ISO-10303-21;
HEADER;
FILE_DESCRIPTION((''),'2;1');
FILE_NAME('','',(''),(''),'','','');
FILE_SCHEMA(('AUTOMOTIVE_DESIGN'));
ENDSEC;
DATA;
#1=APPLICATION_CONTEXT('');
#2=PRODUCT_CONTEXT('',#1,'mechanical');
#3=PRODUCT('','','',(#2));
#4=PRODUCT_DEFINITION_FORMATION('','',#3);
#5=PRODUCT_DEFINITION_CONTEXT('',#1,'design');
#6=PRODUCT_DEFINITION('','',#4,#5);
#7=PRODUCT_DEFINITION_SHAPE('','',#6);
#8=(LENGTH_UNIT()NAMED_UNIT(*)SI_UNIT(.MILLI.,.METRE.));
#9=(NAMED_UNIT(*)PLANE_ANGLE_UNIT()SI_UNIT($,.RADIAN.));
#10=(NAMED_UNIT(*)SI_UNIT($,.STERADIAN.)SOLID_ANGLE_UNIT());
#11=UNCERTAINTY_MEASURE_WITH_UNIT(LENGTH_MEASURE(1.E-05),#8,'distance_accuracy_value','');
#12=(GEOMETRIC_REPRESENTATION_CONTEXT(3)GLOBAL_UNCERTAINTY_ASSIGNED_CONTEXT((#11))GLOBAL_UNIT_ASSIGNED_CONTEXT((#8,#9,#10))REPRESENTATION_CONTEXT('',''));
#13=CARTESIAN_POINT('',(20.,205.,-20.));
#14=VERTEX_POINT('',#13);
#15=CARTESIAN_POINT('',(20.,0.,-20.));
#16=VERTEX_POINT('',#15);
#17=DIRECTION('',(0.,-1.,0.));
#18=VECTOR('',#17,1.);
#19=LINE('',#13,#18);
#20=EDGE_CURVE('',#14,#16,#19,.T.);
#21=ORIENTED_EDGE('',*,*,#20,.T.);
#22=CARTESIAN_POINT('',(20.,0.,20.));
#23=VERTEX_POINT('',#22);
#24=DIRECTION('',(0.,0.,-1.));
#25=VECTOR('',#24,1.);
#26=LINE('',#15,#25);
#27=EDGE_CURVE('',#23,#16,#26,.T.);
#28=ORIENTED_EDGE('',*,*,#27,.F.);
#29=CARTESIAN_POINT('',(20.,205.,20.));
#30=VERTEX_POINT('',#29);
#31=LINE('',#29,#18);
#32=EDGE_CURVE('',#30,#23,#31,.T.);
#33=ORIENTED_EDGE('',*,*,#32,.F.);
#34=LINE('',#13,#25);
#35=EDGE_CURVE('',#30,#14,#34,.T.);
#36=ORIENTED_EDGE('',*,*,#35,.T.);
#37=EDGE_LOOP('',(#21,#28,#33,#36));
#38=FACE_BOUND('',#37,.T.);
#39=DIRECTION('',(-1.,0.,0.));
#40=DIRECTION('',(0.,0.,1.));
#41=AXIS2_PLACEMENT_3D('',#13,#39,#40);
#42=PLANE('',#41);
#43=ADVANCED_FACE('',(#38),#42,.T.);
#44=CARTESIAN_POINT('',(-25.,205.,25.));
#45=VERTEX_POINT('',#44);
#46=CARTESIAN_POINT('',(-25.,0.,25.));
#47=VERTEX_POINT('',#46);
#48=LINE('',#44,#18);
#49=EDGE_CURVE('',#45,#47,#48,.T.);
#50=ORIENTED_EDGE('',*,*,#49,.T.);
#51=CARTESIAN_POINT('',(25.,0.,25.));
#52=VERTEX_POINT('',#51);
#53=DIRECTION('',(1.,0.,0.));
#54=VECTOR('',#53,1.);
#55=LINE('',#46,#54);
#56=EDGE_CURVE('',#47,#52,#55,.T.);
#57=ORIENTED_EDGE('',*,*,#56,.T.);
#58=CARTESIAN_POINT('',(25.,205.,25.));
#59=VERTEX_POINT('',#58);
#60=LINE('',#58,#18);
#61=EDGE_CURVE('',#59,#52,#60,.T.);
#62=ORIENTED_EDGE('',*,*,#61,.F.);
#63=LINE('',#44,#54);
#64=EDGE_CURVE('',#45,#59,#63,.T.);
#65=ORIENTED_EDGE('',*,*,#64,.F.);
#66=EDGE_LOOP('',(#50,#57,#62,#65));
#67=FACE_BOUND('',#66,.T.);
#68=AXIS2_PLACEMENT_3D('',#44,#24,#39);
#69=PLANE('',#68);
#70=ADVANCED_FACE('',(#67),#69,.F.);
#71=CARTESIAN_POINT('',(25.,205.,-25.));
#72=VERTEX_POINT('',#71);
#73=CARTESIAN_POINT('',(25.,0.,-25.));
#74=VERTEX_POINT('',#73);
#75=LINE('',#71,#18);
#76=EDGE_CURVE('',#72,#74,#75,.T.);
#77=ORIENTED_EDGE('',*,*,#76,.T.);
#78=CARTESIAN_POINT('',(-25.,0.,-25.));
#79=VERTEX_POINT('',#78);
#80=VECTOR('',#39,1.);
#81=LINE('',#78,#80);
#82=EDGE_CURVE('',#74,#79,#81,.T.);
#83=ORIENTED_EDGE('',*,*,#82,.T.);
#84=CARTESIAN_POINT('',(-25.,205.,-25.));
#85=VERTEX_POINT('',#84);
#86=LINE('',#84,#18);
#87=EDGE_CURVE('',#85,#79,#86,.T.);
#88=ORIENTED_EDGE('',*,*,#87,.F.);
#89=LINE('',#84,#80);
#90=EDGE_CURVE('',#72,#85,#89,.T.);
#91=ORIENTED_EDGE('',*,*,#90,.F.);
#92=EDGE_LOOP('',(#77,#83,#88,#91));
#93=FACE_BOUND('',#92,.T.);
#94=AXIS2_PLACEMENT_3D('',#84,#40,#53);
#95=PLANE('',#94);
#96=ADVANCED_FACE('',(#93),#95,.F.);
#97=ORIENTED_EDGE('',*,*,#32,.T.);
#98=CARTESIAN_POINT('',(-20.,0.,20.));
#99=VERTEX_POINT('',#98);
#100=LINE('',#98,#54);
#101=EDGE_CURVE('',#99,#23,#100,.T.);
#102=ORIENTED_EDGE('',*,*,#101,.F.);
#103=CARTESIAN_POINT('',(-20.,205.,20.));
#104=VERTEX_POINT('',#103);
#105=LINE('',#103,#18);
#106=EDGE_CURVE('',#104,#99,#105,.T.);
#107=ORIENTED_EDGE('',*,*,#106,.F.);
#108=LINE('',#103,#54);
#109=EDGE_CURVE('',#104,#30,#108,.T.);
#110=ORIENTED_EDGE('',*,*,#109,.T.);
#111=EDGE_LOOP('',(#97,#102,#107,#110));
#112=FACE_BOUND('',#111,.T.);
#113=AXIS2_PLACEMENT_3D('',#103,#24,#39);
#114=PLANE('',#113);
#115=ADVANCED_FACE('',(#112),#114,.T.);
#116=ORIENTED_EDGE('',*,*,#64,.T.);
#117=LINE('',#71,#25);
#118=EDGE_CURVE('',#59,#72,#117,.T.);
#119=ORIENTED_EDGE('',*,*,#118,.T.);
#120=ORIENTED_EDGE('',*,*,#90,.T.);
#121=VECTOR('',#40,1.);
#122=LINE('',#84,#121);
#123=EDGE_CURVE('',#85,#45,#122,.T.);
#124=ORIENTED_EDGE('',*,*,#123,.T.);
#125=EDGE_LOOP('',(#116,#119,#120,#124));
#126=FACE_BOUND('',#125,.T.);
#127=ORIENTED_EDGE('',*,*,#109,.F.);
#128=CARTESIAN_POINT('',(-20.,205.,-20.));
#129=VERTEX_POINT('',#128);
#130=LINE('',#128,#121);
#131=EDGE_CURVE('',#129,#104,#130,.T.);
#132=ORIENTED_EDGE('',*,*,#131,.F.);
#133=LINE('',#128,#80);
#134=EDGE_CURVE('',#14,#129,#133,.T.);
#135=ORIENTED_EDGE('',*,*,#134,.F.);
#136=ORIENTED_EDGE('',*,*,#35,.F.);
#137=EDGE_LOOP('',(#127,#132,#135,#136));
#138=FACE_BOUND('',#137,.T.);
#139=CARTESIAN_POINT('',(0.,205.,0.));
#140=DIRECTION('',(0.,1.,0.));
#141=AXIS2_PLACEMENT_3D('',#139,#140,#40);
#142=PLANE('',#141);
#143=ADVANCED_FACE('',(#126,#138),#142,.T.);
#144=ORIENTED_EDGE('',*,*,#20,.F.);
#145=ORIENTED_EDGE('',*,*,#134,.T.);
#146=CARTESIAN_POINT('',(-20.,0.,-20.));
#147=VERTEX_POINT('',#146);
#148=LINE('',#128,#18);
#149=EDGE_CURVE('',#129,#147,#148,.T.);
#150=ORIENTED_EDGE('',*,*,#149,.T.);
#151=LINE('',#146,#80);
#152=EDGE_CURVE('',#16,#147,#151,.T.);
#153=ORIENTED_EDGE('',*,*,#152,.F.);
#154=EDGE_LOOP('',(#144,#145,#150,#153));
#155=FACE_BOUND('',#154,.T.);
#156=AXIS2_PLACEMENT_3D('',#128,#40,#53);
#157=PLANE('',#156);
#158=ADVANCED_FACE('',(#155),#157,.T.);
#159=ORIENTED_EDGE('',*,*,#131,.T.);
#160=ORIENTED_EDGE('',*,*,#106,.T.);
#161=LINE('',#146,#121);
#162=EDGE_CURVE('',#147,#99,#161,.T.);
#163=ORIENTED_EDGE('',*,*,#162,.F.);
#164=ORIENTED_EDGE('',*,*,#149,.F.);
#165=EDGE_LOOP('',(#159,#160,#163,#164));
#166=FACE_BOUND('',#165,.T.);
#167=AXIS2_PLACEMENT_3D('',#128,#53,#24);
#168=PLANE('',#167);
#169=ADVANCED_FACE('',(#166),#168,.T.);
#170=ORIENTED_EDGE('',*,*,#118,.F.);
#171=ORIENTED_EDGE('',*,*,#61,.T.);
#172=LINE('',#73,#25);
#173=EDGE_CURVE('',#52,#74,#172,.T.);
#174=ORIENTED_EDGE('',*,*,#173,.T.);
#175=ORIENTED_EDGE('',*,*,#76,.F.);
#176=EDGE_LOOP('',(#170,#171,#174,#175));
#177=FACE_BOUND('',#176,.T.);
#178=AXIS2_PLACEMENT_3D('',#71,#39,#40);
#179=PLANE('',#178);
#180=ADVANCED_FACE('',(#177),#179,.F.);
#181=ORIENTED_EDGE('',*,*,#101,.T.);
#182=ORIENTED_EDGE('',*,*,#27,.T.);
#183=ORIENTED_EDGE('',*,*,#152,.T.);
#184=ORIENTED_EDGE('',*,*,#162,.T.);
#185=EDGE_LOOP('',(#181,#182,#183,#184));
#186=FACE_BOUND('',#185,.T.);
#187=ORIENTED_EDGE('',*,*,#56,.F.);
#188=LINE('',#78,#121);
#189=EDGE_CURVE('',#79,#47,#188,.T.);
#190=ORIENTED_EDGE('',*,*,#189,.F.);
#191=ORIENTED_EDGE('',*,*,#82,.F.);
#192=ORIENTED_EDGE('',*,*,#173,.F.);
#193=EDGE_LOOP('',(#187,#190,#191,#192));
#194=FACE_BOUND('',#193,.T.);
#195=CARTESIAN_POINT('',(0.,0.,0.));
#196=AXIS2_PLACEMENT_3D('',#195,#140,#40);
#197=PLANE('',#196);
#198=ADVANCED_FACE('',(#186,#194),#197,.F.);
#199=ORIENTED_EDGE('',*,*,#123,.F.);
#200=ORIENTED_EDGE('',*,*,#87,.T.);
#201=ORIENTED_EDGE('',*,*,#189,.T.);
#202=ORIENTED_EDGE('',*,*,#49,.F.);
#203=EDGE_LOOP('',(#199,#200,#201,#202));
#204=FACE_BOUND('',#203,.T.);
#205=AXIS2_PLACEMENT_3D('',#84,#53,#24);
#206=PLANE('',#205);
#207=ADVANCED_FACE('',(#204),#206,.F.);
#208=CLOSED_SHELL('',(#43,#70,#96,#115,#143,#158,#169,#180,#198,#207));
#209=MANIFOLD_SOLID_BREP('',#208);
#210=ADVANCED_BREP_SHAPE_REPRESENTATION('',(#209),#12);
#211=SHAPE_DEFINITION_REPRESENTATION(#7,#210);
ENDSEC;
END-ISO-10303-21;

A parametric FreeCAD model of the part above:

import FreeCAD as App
import Part
import Sketcher
from FreeCAD import Vector
Q = App.Units.Quantity


def add_polygon(sketch, points):
    """Adds a closed chain of lines whose ends are joined by coincident constraints."""
    first, n = sketch.GeometryCount, len(points)
    for a, b in zip(points, points[1:] + points[:1]):
        sketch.addGeometry(Part.LineSegment(App.Vector(*a, 0), App.Vector(*b, 0)), False)
    for i in range(n):
        sketch.addConstraint(Sketcher.Constraint("Coincident", first + i, 2, first + (i + 1) % n, 1))

doc = App.newDocument("Part")
body = doc.addObject("PartDesign::Body", "Body")

sketch1 = body.newObject("Sketcher::SketchObject", "Sketch")
sketch1.AttachmentSupport = (doc.getObject("XZ_Plane"), [""])
sketch1.MapMode = "FlatFace"
add_polygon(sketch1, [(-25, -25), (-25, 25), (25, 25), (25, -25)])
add_polygon(sketch1, [(20, 20), (-20, 20), (-20, -20), (20, -20)])
sketch1.addConstraint([
    Sketcher.Constraint("Vertical", 0),
    Sketcher.Constraint("Horizontal", 1),
    Sketcher.Constraint("Vertical", 2),
    Sketcher.Constraint("Horizontal", 3),
    Sketcher.Constraint("Horizontal", 4),
    Sketcher.Constraint("Vertical", 5),
    Sketcher.Constraint("Horizontal", 6),
    Sketcher.Constraint("Vertical", 7),
    Sketcher.Constraint("Symmetric", 0, 2, 2, 2, -1, 1),
    Sketcher.Constraint("Symmetric", 4, 2, 6, 2, -1, 1),
    Sketcher.Constraint("Equal", 3, 0),
    Sketcher.Constraint("Equal", 6, 5),
    Sketcher.Constraint("DistanceX", 1, 1, 1, 2, Q("50 mm")),
    Sketcher.Constraint("DistanceX", 4, 2, 4, 1, Q("40 mm")),
])
pad1 = body.newObject("PartDesign::Pad", "Pad")
pad1.Profile = sketch1
pad1.Length = 205
pad1.Reversed = True

doc.recompute()
